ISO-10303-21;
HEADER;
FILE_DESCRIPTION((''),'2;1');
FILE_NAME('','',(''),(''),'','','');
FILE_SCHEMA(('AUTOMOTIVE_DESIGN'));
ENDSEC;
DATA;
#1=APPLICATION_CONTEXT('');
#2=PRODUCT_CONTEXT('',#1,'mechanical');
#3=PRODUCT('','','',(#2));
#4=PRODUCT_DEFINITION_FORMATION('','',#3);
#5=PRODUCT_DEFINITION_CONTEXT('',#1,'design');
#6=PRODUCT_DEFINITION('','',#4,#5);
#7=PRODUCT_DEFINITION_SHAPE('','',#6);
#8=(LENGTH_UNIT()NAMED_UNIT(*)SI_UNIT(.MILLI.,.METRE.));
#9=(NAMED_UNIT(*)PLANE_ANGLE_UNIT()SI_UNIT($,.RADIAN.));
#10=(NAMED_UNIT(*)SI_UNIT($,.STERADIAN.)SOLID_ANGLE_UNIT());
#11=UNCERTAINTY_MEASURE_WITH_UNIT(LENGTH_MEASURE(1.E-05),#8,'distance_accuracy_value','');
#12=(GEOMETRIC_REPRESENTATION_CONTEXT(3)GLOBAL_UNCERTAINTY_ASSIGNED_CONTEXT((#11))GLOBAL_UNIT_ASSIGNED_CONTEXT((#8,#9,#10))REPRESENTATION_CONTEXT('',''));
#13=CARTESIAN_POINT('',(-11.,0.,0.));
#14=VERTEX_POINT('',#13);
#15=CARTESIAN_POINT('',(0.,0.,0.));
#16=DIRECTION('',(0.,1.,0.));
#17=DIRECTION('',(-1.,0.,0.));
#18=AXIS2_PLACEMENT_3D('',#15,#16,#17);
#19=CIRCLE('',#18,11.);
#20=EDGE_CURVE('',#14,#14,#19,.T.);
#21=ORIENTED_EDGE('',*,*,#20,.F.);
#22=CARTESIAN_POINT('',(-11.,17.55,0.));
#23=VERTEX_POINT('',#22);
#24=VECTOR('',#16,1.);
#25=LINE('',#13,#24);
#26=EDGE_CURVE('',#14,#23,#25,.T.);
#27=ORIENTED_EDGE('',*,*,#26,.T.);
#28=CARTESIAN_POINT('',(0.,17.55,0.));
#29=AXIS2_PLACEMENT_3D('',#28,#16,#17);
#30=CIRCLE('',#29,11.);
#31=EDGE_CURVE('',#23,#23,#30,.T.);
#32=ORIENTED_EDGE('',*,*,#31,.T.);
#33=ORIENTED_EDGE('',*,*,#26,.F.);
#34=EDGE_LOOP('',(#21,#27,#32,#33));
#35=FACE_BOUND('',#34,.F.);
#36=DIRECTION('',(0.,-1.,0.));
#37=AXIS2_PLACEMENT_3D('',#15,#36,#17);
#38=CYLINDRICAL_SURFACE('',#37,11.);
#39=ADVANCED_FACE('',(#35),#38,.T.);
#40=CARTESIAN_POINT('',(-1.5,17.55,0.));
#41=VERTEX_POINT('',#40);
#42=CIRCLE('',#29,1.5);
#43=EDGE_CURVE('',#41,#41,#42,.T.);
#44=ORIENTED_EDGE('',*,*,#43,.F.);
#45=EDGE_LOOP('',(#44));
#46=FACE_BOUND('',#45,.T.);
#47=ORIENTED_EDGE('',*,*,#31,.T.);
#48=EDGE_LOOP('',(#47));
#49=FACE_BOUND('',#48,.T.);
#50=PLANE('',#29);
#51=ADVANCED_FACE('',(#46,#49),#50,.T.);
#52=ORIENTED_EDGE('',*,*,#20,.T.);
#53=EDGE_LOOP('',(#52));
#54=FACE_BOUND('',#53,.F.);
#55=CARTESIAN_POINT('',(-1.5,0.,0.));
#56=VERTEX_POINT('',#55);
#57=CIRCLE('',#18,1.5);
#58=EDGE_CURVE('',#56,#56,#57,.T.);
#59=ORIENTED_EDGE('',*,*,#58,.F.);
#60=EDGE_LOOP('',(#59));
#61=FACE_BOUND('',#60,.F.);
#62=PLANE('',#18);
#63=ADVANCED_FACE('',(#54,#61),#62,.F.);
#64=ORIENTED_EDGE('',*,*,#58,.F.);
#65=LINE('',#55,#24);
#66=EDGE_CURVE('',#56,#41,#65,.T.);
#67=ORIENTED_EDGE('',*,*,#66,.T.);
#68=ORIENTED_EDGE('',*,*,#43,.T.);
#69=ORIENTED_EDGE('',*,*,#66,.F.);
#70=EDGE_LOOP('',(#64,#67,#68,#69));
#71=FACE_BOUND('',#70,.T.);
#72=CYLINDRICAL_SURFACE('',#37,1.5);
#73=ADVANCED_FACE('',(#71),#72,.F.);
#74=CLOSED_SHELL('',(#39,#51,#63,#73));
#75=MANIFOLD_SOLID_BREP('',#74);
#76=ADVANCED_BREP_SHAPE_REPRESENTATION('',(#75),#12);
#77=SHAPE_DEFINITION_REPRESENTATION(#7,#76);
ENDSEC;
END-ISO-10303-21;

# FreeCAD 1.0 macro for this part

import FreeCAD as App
import Part
import Sketcher

doc = App.newDocument("Part")
body = doc.addObject("PartDesign::Body", "Body")

sketch1 = body.newObject("Sketcher::SketchObject", "Sketch")
sketch1.AttachmentSupport = (doc.getObject("XZ_Plane"), [""])
sketch1.MapMode = "FlatFace"
sketch1.addGeometry([
    Part.Circle(App.Vector(0, 0, 0), App.Vector(0, 0, 1), 11),
    Part.Circle(App.Vector(0, 0, 0), App.Vector(0, 0, 1), 1.5),
], False)
sketch1.addConstraint([
    Sketcher.Constraint("Coincident", 0, 3, -1, 1),
    Sketcher.Constraint("Coincident", 1, 3, -1, 1),
    Sketcher.Constraint("Diameter", 0, 22.0),
    Sketcher.Constraint("Diameter", 1, 3.0),
])
pad1 = body.newObject("PartDesign::Pad", "Pad")
pad1.Profile = sketch1
pad1.Length = 17.55
pad1.Reversed = True

doc.recompute()
